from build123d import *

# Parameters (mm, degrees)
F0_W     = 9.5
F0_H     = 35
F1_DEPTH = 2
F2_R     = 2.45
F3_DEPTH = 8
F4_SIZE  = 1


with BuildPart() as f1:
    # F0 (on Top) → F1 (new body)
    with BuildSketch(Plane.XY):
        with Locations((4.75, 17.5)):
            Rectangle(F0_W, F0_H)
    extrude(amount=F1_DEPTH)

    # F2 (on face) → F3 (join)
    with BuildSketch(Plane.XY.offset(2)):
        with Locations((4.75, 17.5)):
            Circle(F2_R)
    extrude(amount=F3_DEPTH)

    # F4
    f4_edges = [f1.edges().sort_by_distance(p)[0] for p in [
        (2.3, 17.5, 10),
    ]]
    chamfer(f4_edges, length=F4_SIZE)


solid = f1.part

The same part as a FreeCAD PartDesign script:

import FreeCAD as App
import Part
import Sketcher


def edges_at(feature, points):
    """Names of the edges that pass closest to the given points."""
    edges = feature.Shape.Edges
    near = lambda p: min(range(len(edges)), key=lambda i: edges[i].distToShape(Part.Vertex(*p))[0])
    return sorted({f"Edge{near(p) + 1}" for p in points})


def add_polygon(sketch, points):
    """Adds a closed chain of lines whose ends are joined by coincident constraints."""
    first, n = sketch.GeometryCount, len(points)
    for a, b in zip(points, points[1:] + points[:1]):
        sketch.addGeometry(Part.LineSegment(App.Vector(*a, 0), App.Vector(*b, 0)), False)
    for i in range(n):
        sketch.addConstraint(Sketcher.Constraint("Coincident", first + i, 2, first + (i + 1) % n, 1))

doc = App.newDocument("Part")
body = doc.addObject("PartDesign::Body", "Body")

sketch1 = doc.addObject("Sketcher::SketchObject", "Sketch")
body.addObject(sketch1)
sketch1.AttachmentSupport = (doc.XY_Plane, [""])
sketch1.MapMode = "FlatFace"
add_polygon(sketch1, [(0, 35), (0, 0), (10, 0), (10, 35)])
sketch1.addConstraint(Sketcher.Constraint("Vertical", 0))
sketch1.addConstraint(Sketcher.Constraint("Horizontal", 1))
sketch1.addConstraint(Sketcher.Constraint("Vertical", 2))
sketch1.addConstraint(Sketcher.Constraint("Horizontal", 3))
sketch1.addConstraint(Sketcher.Constraint("Coincident", 0, 2, -1, 1))
sketch1.addConstraint(Sketcher.Constraint("DistanceY", 0, 2, 0, 1, 35.0))
sketch1.addConstraint(Sketcher.Constraint("DistanceX", 1, 1, 1, 2, 9.5))
pad1 = doc.addObject("PartDesign::Pad", "Pad")
body.addObject(pad1)
pad1.Profile = sketch1
pad1.Length = 2

sketch2 = doc.addObject("Sketcher::SketchObject", "Sketch001")
body.addObject(sketch2)
sketch2.AttachmentSupport = (doc.XY_Plane, [""])
sketch2.MapMode = "FlatFace"
sketch2.AttachmentOffset = App.Placement(App.Vector(0, 0, 2), App.Rotation())
sketch2.addGeometry(Part.Circle(App.Vector(4.8, 17.5, 0), App.Vector(0, 0, 1), 2.5), False)
sketch2.addConstraint(Sketcher.Constraint("Diameter", 0, 4.9))
sketch2.addConstraint(Sketcher.Constraint("DistanceY", -1, 1, 0, 3, 17.5))
sketch2.addConstraint(Sketcher.Constraint("DistanceX", -1, 1, 0, 3, 4.75))
pad2 = doc.addObject("PartDesign::Pad", "Pad001")
body.addObject(pad2)
pad2.Profile = sketch2
pad2.Length = 8
doc.recompute()

chamfer = doc.addObject("PartDesign::Chamfer", "Chamfer")
body.addObject(chamfer)
chamfer.Base = (pad2, edges_at(pad2, [(2.3, 17.5, 10)]))
chamfer.Size = 1

doc.recompute()
